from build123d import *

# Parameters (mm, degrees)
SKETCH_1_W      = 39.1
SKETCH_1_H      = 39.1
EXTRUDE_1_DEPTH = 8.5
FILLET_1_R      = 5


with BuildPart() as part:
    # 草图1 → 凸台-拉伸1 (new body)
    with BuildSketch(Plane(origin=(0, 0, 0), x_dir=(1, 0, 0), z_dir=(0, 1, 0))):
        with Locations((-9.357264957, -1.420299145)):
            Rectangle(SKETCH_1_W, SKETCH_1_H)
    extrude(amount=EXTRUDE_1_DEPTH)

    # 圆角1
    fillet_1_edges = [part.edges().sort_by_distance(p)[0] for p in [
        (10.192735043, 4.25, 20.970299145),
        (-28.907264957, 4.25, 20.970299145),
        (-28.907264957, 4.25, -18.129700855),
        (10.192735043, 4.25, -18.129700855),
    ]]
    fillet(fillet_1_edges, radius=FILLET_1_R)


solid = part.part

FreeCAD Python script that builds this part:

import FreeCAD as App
import Part
import Sketcher


def edges_at(feature, points):
    """Names of the edges that pass closest to the given points."""
    edges = feature.Shape.Edges
    near = lambda p: min(range(len(edges)), key=lambda i: edges[i].distToShape(Part.Vertex(*p))[0])
    return sorted({f"Edge{near(p) + 1}" for p in points})

doc = App.newDocument("Part")
body = doc.addObject("PartDesign::Body", "Body")

# Sketch on XZ plane
sketch1 = body.newObject("Sketcher::SketchObject", "Sketch")
sketch1.AttachmentSupport = (doc.getObject("XZ_Plane"), [""])
sketch1.MapMode = "FlatFace"
sketch1.addGeometry([
    Part.LineSegment(App.Vector(-29, -18, 0), App.Vector(-29, 21, 0)),
    Part.LineSegment(App.Vector(-29, 21, 0), App.Vector(10, 21, 0)),
    Part.LineSegment(App.Vector(10, 21, 0), App.Vector(10, -18, 0)),
    Part.LineSegment(App.Vector(10, -18, 0), App.Vector(-29, -18, 0)),
], False)
sketch1.addConstraint([
    Sketcher.Constraint("Coincident", 0, 2, 1, 1),
    Sketcher.Constraint("Coincident", 1, 2, 2, 1),
    Sketcher.Constraint("Coincident", 2, 2, 3, 1),
    Sketcher.Constraint("Coincident", 3, 2, 0, 1),
    Sketcher.Constraint("Vertical", 0),
    Sketcher.Constraint("Horizontal", 1),
    Sketcher.Constraint("Vertical", 2),
    Sketcher.Constraint("Horizontal", 3),
    Sketcher.Constraint("Equal", 3, 0),
    Sketcher.Constraint("DistanceX", 1, 1, 1, 2, 39.1),
    Sketcher.Constraint("DistanceY", -1, 1, 0, 2, 20.970299),
    Sketcher.Constraint("DistanceX", 0, 2, -1, 1, 28.907265),
])
pad1 = body.newObject("PartDesign::Pad", "Pad")
pad1.Profile = sketch1
pad1.Length = 8.5
pad1.Reversed = True
doc.recompute()

fillet = body.newObject("PartDesign::Fillet", "Fillet")
fillet.Base = (pad1, edges_at(pad1, [
    (10.193, 4.25, 20.97),
    (-28.907, 4.25, 20.97),
    (-28.907, 4.25, -18.13),
    (10.193, 4.25, -18.13),
]))
fillet.Radius = 5

doc.recompute()
